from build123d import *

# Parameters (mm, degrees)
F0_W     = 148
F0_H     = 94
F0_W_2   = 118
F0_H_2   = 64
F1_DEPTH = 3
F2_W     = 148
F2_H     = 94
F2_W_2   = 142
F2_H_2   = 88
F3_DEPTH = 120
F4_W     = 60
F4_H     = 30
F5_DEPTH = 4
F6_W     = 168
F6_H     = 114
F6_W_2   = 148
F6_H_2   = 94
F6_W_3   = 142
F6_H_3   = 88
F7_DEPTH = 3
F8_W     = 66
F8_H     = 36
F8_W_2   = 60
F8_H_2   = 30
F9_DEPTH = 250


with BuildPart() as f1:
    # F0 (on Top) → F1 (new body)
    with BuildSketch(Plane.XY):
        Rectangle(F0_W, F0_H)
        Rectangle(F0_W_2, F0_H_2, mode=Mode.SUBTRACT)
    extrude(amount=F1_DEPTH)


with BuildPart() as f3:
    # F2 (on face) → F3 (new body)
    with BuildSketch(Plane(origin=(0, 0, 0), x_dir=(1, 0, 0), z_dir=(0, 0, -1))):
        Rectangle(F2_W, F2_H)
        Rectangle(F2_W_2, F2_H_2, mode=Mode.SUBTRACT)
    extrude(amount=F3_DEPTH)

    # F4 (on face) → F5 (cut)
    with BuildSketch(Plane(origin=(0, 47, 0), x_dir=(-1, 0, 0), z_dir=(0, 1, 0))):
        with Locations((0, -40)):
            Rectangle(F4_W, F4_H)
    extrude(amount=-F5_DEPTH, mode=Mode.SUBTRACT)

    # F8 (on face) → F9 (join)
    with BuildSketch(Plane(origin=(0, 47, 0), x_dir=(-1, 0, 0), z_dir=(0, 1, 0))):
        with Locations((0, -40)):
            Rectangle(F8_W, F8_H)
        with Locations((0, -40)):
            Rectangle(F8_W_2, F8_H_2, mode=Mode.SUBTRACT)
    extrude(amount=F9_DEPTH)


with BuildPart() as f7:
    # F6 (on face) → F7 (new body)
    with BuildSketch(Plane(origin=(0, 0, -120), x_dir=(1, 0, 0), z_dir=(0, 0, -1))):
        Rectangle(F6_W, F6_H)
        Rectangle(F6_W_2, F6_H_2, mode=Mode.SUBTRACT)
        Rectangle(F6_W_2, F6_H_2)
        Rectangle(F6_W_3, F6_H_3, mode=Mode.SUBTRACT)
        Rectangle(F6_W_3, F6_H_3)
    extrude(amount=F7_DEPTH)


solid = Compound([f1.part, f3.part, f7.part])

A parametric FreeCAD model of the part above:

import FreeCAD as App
import Part
import Sketcher
from FreeCAD import Vector

doc = App.newDocument("Part")
params = doc.addObject("Spreadsheet::Sheet", "Params")
for row, (alias, value) in enumerate([
    ("sketch1_width", "148 mm"),
    ("sketch1_width2", "118 mm"),
    ("sketch1_height", "94 mm"),
    ("sketch1_height2", "64 mm"),
    ("pad1_length", "3 mm"),
    ("sketch2_width", "148 mm"),
    ("sketch2_width2", "142 mm"),
    ("sketch2_height", "94 mm"),
    ("sketch2_height2", "88 mm"),
    ("pad2_length", "120 mm"),
    ("sketch3_width", "60 mm"),
    ("sketch3_height", "30 mm"),
    ("pocket1_length", "4 mm"),
    ("sketch4_width", "66 mm"),
    ("sketch4_width2", "60 mm"),
    ("sketch4_height", "36 mm"),
    ("sketch4_height2", "30 mm"),
    ("pad3_length", "250 mm"),
    ("sketch5_width", "168 mm"),
    ("sketch5_height", "114 mm"),
    ("pad4_length", "3 mm"),
], start=1):
    params.set(f"A{row}", alias)
    params.set(f"B{row}", "=" + value)
    params.setAlias(f"B{row}", alias)

body = doc.addObject("PartDesign::Body", "Body")

# Sketch on XY plane
sketch1 = body.newObject("Sketcher::SketchObject", "Sketch")
sketch1.AttachmentSupport = (doc.getObject("XY_Plane"), [""])
sketch1.MapMode = "FlatFace"
sketch1.addGeometry([
    Part.LineSegment(Vector(-74, 47, 0), Vector(-74, -47, 0)),  # 0
    Part.LineSegment(Vector(-74, -47, 0), Vector(74, -47, 0)),  # 1
    Part.LineSegment(Vector(74, -47, 0), Vector(74, 47, 0)),  # 2
    Part.LineSegment(Vector(74, 47, 0), Vector(-74, 47, 0)),  # 3
    Part.LineSegment(Vector(59, -32, 0), Vector(-59, -32, 0)),  # 4
    Part.LineSegment(Vector(-59, -32, 0), Vector(-59, 32, 0)),  # 5
    Part.LineSegment(Vector(-59, 32, 0), Vector(59, 32, 0)),  # 6
    Part.LineSegment(Vector(59, 32, 0), Vector(59, -32, 0)),  # 7
], False)
sketch1.addConstraint([
    Sketcher.Constraint("Coincident", 0, 2, 1, 1),
    Sketcher.Constraint("Coincident", 1, 2, 2, 1),
    Sketcher.Constraint("Coincident", 2, 2, 3, 1),
    Sketcher.Constraint("Coincident", 3, 2, 0, 1),
    Sketcher.Constraint("Coincident", 4, 2, 5, 1),
    Sketcher.Constraint("Coincident", 5, 2, 6, 1),
    Sketcher.Constraint("Coincident", 6, 2, 7, 1),
    Sketcher.Constraint("Coincident", 7, 2, 4, 1),
    Sketcher.Constraint("Vertical", 0),
    Sketcher.Constraint("Horizontal", 1),
    Sketcher.Constraint("Vertical", 2),
    Sketcher.Constraint("Horizontal", 3),
    Sketcher.Constraint("Horizontal", 4),
    Sketcher.Constraint("Vertical", 5),
    Sketcher.Constraint("Horizontal", 6),
    Sketcher.Constraint("Vertical", 7),
    Sketcher.Constraint("Symmetric", 0, 2, 2, 2, -1, 1),
    Sketcher.Constraint("Symmetric", 4, 2, 6, 2, -1, 1),
    Sketcher.Constraint("DistanceX", 1, 1, 1, 2, 148.0),
    Sketcher.Constraint("DistanceX", 4, 2, 4, 1, 118.0),
    Sketcher.Constraint("DistanceY", 0, 2, 0, 1, 94.0),
    Sketcher.Constraint("DistanceY", 5, 1, 5, 2, 64.0),
])
sketch1.setExpression("Constraints[18]", "Params.sketch1_width")
sketch1.setExpression("Constraints[19]", "Params.sketch1_width2")
sketch1.setExpression("Constraints[20]", "Params.sketch1_height")
sketch1.setExpression("Constraints[21]", "Params.sketch1_height2")
pad1 = body.newObject("PartDesign::Pad", "Pad")
pad1.Profile = sketch1
pad1.setExpression("Length", "Params.pad1_length")
body2 = doc.addObject("PartDesign::Body", "Body001")

# Sketch on XY plane
sketch2 = body2.newObject("Sketcher::SketchObject", "Sketch001")
sketch2.AttachmentSupport = (doc.getObject("XY_Plane001"), [""])
sketch2.MapMode = "FlatFace"
sketch2.addGeometry([
    Part.LineSegment(Vector(-74, -47, 0), Vector(-74, 47, 0)),  # 0
    Part.LineSegment(Vector(-74, 47, 0), Vector(74, 47, 0)),  # 1
    Part.LineSegment(Vector(74, 47, 0), Vector(74, -47, 0)),  # 2
    Part.LineSegment(Vector(74, -47, 0), Vector(-74, -47, 0)),  # 3
    Part.LineSegment(Vector(71, 44, 0), Vector(-71, 44, 0)),  # 4
    Part.LineSegment(Vector(-71, 44, 0), Vector(-71, -44, 0)),  # 5
    Part.LineSegment(Vector(-71, -44, 0), Vector(71, -44, 0)),  # 6
    Part.LineSegment(Vector(71, -44, 0), Vector(71, 44, 0)),  # 7
], False)
sketch2.addConstraint([
    Sketcher.Constraint("Coincident", 0, 2, 1, 1),
    Sketcher.Constraint("Coincident", 1, 2, 2, 1),
    Sketcher.Constraint("Coincident", 2, 2, 3, 1),
    Sketcher.Constraint("Coincident", 3, 2, 0, 1),
    Sketcher.Constraint("Coincident", 4, 2, 5, 1),
    Sketcher.Constraint("Coincident", 5, 2, 6, 1),
    Sketcher.Constraint("Coincident", 6, 2, 7, 1),
    Sketcher.Constraint("Coincident", 7, 2, 4, 1),
    Sketcher.Constraint("Vertical", 0),
    Sketcher.Constraint("Horizontal", 1),
    Sketcher.Constraint("Vertical", 2),
    Sketcher.Constraint("Horizontal", 3),
    Sketcher.Constraint("Horizontal", 4),
    Sketcher.Constraint("Vertical", 5),
    Sketcher.Constraint("Horizontal", 6),
    Sketcher.Constraint("Vertical", 7),
    Sketcher.Constraint("Symmetric", 0, 2, 2, 2, -1, 1),
    Sketcher.Constraint("Symmetric", 4, 2, 6, 2, -1, 1),
    Sketcher.Constraint("DistanceX", 1, 1, 1, 2, 148.0),
    Sketcher.Constraint("DistanceX", 4, 2, 4, 1, 142.0),
    Sketcher.Constraint("DistanceY", 0, 1, 0, 2, 94.0),
    Sketcher.Constraint("DistanceY", 5, 2, 5, 1, 88.0),
])
sketch2.setExpression("Constraints[18]", "Params.sketch2_width")
sketch2.setExpression("Constraints[19]", "Params.sketch2_width2")
sketch2.setExpression("Constraints[20]", "Params.sketch2_height")
sketch2.setExpression("Constraints[21]", "Params.sketch2_height2")
pad2 = body2.newObject("PartDesign::Pad", "Pad001")
pad2.Profile = sketch2
pad2.setExpression("Length", "Params.pad2_length")
pad2.Reversed = True

# Sketch on XZ plane
sketch3 = body2.newObject("Sketcher::SketchObject", "Sketch002")
sketch3.AttachmentSupport = (doc.getObject("XZ_Plane001"), [""])
sketch3.MapMode = "FlatFace"
sketch3.AttachmentOffset = App.Placement(Vector(0, 0, -47), App.Rotation())
sketch3.addGeometry([
    Part.LineSegment(Vector(30, -25, 0), Vector(30, -55, 0)),
    Part.LineSegment(Vector(30, -55, 0), Vector(-30, -55, 0)),
    Part.LineSegment(Vector(-30, -55, 0), Vector(-30, -25, 0)),
    Part.LineSegment(Vector(-30, -25, 0), Vector(30, -25, 0)),
], False)
sketch3.addConstraint([
    Sketcher.Constraint("Coincident", 0, 2, 1, 1),
    Sketcher.Constraint("Coincident", 1, 2, 2, 1),
    Sketcher.Constraint("Coincident", 2, 2, 3, 1),
    Sketcher.Constraint("Coincident", 3, 2, 0, 1),
    Sketcher.Constraint("Vertical", 0),
    Sketcher.Constraint("Horizontal", 1),
    Sketcher.Constraint("Vertical", 2),
    Sketcher.Constraint("Horizontal", 3),
    Sketcher.Constraint("DistanceX", 1, 2, 1, 1, 60.0),
    Sketcher.Constraint("DistanceY", 0, 2, 0, 1, 30.0),
    Sketcher.Constraint("DistanceX", -1, 1, 0, 2, 30.0),
    Sketcher.Constraint("DistanceY", 0, 2, -1, 1, 55.0),
])
sketch3.setExpression("Constraints[8]", "Params.sketch3_width")
sketch3.setExpression("Constraints[9]", "Params.sketch3_height")
pocket1 = body2.newObject("PartDesign::Pocket", "Pocket")
pocket1.Profile = sketch3
pocket1.setExpression("Length", "Params.pocket1_length")
pocket1.Reversed = True

# Sketch on XZ plane
sketch4 = body2.newObject("Sketcher::SketchObject", "Sketch003")
sketch4.AttachmentSupport = (doc.getObject("XZ_Plane001"), [""])
sketch4.MapMode = "FlatFace"
sketch4.AttachmentOffset = App.Placement(Vector(0, 0, -47), App.Rotation())
sketch4.addGeometry([
    Part.LineSegment(Vector(33, -22, 0), Vector(33, -58, 0)),  # 0
    Part.LineSegment(Vector(33, -58, 0), Vector(-33, -58, 0)),  # 1
    Part.LineSegment(Vector(-33, -58, 0), Vector(-33, -22, 0)),  # 2
    Part.LineSegment(Vector(-33, -22, 0), Vector(33, -22, 0)),  # 3
    Part.LineSegment(Vector(-30, -55, 0), Vector(30, -55, 0)),  # 4
    Part.LineSegment(Vector(30, -55, 0), Vector(30, -25, 0)),  # 5
    Part.LineSegment(Vector(30, -25, 0), Vector(-30, -25, 0)),  # 6
    Part.LineSegment(Vector(-30, -25, 0), Vector(-30, -55, 0)),  # 7
], False)
sketch4.addConstraint([
    Sketcher.Constraint("Coincident", 0, 2, 1, 1),
    Sketcher.Constraint("Coincident", 1, 2, 2, 1),
    Sketcher.Constraint("Coincident", 2, 2, 3, 1),
    Sketcher.Constraint("Coincident", 3, 2, 0, 1),
    Sketcher.Constraint("Coincident", 4, 2, 5, 1),
    Sketcher.Constraint("Coincident", 5, 2, 6, 1),
    Sketcher.Constraint("Coincident", 6, 2, 7, 1),
    Sketcher.Constraint("Coincident", 7, 2, 4, 1),
    Sketcher.Constraint("Vertical", 0),
    Sketcher.Constraint("Horizontal", 1),
    Sketcher.Constraint("Vertical", 2),
    Sketcher.Constraint("Horizontal", 3),
    Sketcher.Constraint("Horizontal", 4),
    Sketcher.Constraint("Vertical", 5),
    Sketcher.Constraint("Horizontal", 6),
    Sketcher.Constraint("Vertical", 7),
    Sketcher.Constraint("DistanceX", 1, 2, 1, 1, 66.0),
    Sketcher.Constraint("DistanceX", 4, 1, 4, 2, 60.0),
    Sketcher.Constraint("DistanceY", 0, 2, 0, 1, 36.0),
    Sketcher.Constraint("DistanceY", 5, 1, 5, 2, 30.0),
    Sketcher.Constraint("DistanceX", -1, 1, 0, 2, 33.0),
    Sketcher.Constraint("DistanceY", 0, 2, -1, 1, 58.0),
    Sketcher.Constraint("DistanceX", -1, 1, 4, 2, 30.0),
    Sketcher.Constraint("DistanceY", 4, 2, -1, 1, 55.0),
])
sketch4.setExpression("Constraints[16]", "Params.sketch4_width")
sketch4.setExpression("Constraints[17]", "Params.sketch4_width2")
sketch4.setExpression("Constraints[18]", "Params.sketch4_height")
sketch4.setExpression("Constraints[19]", "Params.sketch4_height2")
pad3 = body2.newObject("PartDesign::Pad", "Pad002")
pad3.Profile = sketch4
pad3.setExpression("Length", "Params.pad3_length")
pad3.Reversed = True
body3 = doc.addObject("PartDesign::Body", "Body002")

# Sketch on XY plane
sketch5 = body3.newObject("Sketcher::SketchObject", "Sketch004")
sketch5.AttachmentSupport = (doc.getObject("XY_Plane002"), [""])
sketch5.MapMode = "FlatFace"
sketch5.AttachmentOffset = App.Placement(Vector(0, 0, -120), App.Rotation())
sketch5.addGeometry([
    Part.LineSegment(Vector(-84, -57, 0), Vector(-84, 57, 0)),
    Part.LineSegment(Vector(-84, 57, 0), Vector(84, 57, 0)),
    Part.LineSegment(Vector(84, 57, 0), Vector(84, -57, 0)),
    Part.LineSegment(Vector(84, -57, 0), Vector(-84, -57, 0)),
], False)
sketch5.addConstraint([
    Sketcher.Constraint("Coincident", 0, 2, 1, 1),
    Sketcher.Constraint("Coincident", 1, 2, 2, 1),
    Sketcher.Constraint("Coincident", 2, 2, 3, 1),
    Sketcher.Constraint("Coincident", 3, 2, 0, 1),
    Sketcher.Constraint("Vertical", 0),
    Sketcher.Constraint("Horizontal", 1),
    Sketcher.Constraint("Vertical", 2),
    Sketcher.Constraint("Horizontal", 3),
    Sketcher.Constraint("Symmetric", 0, 2, 2, 2, -1, 1),
    Sketcher.Constraint("DistanceX", 1, 1, 1, 2, 168.0),
    Sketcher.Constraint("DistanceY", 0, 1, 0, 2, 114.0),
])
sketch5.setExpression("Constraints[9]", "Params.sketch5_width")
sketch5.setExpression("Constraints[10]", "Params.sketch5_height")
pad4 = body3.newObject("PartDesign::Pad", "Pad003")
pad4.Profile = sketch5
pad4.setExpression("Length", "Params.pad4_length")
pad4.Reversed = True

doc.recompute()
